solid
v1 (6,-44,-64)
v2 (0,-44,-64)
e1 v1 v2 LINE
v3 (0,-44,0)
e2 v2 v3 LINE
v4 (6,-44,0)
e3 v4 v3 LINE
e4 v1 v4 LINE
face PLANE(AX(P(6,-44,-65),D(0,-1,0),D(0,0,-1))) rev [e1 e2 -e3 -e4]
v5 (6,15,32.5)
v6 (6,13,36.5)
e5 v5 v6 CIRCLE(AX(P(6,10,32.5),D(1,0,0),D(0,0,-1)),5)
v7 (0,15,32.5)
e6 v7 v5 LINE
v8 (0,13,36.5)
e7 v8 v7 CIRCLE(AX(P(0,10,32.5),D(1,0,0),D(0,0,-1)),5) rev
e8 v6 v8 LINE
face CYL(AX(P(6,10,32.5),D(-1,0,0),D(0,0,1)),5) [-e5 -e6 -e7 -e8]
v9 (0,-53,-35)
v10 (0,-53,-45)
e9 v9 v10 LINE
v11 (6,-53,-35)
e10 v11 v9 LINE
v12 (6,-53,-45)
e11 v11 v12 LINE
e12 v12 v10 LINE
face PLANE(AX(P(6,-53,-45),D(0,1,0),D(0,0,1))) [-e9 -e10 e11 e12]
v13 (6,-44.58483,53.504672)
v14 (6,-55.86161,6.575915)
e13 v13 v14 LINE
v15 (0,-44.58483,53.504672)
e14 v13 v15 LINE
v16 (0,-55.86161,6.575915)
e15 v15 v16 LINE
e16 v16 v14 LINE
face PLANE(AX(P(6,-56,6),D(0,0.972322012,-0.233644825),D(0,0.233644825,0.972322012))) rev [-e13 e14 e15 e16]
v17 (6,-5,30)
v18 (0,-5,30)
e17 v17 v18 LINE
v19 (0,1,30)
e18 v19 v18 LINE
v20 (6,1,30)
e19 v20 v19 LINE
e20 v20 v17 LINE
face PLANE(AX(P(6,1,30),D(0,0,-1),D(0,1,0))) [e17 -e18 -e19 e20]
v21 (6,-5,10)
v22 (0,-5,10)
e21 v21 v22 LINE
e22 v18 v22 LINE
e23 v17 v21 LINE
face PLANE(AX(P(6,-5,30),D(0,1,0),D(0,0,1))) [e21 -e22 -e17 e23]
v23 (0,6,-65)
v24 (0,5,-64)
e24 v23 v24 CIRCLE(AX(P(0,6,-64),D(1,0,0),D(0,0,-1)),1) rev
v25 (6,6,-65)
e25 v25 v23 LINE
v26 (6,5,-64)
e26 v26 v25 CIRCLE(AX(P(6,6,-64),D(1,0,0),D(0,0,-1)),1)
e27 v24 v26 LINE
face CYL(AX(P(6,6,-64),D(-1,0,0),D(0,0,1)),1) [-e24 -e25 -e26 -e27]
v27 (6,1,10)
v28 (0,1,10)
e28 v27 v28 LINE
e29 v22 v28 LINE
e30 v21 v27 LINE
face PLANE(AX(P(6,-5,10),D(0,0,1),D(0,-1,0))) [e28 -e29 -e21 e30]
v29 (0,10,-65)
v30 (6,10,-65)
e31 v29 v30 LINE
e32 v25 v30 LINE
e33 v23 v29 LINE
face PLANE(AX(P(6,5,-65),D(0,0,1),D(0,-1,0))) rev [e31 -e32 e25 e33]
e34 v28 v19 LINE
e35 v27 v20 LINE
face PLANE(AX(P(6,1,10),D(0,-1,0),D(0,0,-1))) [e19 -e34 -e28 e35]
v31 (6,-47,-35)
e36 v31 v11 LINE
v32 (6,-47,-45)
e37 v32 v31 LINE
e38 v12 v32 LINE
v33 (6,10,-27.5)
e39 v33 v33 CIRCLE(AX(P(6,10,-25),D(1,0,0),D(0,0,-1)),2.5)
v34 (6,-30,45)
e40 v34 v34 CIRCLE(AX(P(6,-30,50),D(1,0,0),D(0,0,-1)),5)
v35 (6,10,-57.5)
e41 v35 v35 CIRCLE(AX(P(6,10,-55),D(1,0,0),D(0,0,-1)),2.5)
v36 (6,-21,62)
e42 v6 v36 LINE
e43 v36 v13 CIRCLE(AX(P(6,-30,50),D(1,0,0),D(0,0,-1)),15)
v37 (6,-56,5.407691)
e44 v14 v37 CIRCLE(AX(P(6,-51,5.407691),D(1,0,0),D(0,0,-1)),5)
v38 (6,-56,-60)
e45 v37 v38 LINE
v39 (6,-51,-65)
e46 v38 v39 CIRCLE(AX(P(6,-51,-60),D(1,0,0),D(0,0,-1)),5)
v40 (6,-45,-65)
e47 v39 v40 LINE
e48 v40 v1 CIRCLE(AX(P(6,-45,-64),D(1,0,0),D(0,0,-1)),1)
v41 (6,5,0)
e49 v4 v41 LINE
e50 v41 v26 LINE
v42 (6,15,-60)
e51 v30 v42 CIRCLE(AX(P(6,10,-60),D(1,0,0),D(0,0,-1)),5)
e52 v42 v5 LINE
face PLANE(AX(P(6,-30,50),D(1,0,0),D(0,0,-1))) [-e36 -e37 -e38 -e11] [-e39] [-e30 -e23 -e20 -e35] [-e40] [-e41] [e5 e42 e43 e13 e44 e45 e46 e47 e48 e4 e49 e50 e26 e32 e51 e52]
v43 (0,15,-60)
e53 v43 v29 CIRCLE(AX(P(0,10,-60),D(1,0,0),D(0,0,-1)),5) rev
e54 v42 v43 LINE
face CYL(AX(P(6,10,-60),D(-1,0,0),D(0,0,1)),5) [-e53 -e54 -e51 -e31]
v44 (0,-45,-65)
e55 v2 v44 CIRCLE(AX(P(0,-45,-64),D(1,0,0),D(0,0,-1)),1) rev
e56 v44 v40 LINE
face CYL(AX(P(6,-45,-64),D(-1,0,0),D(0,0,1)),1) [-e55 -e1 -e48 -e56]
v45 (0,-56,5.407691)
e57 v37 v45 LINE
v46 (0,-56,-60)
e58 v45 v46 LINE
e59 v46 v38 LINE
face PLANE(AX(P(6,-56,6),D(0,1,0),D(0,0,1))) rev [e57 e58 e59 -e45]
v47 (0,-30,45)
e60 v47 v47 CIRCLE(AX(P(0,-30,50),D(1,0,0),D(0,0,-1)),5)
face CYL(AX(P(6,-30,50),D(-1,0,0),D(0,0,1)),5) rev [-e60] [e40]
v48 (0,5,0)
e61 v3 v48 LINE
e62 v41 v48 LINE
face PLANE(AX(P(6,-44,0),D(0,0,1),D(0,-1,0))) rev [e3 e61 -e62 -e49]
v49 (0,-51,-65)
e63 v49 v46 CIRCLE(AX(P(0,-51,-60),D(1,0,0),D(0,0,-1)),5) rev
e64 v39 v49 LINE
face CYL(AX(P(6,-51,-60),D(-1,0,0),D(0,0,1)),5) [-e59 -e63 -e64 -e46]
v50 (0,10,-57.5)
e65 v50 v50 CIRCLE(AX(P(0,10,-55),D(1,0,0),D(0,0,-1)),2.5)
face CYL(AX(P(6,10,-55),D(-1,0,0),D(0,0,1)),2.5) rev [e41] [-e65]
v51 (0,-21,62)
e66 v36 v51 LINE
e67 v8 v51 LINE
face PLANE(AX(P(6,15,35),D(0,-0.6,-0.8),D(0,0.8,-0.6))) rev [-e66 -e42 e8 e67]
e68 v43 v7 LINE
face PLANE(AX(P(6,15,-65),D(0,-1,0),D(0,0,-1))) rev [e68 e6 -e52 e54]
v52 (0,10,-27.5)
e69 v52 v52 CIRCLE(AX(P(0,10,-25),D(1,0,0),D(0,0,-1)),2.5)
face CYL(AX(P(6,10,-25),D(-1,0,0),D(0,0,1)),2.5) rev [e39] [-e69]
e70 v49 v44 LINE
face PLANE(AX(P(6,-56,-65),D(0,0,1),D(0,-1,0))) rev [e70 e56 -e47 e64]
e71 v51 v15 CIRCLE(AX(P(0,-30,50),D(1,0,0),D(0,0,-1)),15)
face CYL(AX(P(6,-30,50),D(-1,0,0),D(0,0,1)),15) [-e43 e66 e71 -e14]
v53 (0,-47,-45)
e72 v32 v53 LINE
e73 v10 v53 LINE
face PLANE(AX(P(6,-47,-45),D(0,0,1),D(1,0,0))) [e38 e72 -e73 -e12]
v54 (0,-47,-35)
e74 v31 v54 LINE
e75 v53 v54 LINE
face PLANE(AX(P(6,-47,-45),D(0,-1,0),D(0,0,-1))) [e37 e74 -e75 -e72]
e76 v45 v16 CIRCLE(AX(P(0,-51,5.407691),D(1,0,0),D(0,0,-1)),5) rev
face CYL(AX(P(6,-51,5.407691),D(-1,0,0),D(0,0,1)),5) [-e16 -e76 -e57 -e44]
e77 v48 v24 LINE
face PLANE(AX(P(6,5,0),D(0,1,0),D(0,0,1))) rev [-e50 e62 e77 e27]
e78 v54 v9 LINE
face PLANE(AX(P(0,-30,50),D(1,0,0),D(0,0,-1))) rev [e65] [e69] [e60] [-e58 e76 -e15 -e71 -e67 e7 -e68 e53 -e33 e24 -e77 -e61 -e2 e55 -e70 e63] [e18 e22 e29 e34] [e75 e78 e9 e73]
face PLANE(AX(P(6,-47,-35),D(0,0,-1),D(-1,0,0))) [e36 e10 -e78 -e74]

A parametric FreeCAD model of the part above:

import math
import FreeCAD as App
import Part
import Sketcher

V = App.Vector
Q = App.Units.Quantity


def edges_at(feature, points):
    """Names of the edges that pass closest to the given points."""
    edges = feature.Shape.Edges
    near = lambda p: min(range(len(edges)), key=lambda i: edges[i].distToShape(Part.Vertex(*p))[0])
    return sorted({f"Edge{near(p) + 1}" for p in points})


def add_polygon(sketch, points):
    """Adds a closed chain of lines whose ends are joined by coincident constraints."""
    first, n = sketch.GeometryCount, len(points)
    for a, b in zip(points, points[1:] + points[:1]):
        sketch.addGeometry(Part.LineSegment(App.Vector(*a, 0), App.Vector(*b, 0)), False)
    for i in range(n):
        sketch.addConstraint(Sketcher.Constraint("Coincident", first + i, 2, first + (i + 1) % n, 1))

doc = App.newDocument("Part")
body = doc.addObject("PartDesign::Body", "Body")

# Sketch on YZ plane
sketch1 = body.newObject("Sketcher::SketchObject", "Sketch")
sketch1.AttachmentSupport = (doc.getObject("YZ_Plane"), [""])
sketch1.MapMode = "FlatFace"
sketch1.addGeometry(Part.LineSegment(V(5, 0, 0), V(5, -65, 0)), False)  # 0
sketch1.addGeometry(Part.LineSegment(V(5, -65, 0), V(15, -65, 0)), False)  # 1
sketch1.addGeometry(Part.LineSegment(V(15, -65, 0), V(15, 35, 0)), False)  # 2
sketch1.addGeometry(Part.LineSegment(V(15, 35, 0), V(-21, 62, 0)), False)  # 3
sketch1.addGeometry(Part.ArcOfCircle(Part.Circle(V(-30, 50, 0), V(0, 0, 1), 15), math.radians(53.130102), math.radians(166.488247)), False)  # 4
sketch1.addGeometry(Part.LineSegment(V(-44.58483, 53.504672, 0), V(-56, 6, 0)), False)  # 5
sketch1.addGeometry(Part.LineSegment(V(-56, 6, 0), V(-56, -65, 0)), False)  # 6
sketch1.addGeometry(Part.LineSegment(V(-56, -65, 0), V(-44, -65, 0)), False)  # 7
sketch1.addGeometry(Part.LineSegment(V(-44, -65, 0), V(-44, 0, 0)), False)  # 8
sketch1.addGeometry(Part.LineSegment(V(-44, 0, 0), V(5, 0, 0)), False)  # 9
sketch1.addGeometry(Part.Circle(V(-30, 50, 0), V(0, 0, 1), 5), False)  # 10
add_polygon(sketch1, [(-53, -45), (-53, -35), (-47, -35), (-47, -45)])  # lines 11-14
add_polygon(sketch1, [(-5, 10), (-5, 30), (1, 30), (1, 10)])  # lines 15-18
sketch1.addGeometry(Part.Circle(V(10, -25, 0), V(0, 0, 1), 2.5), False)  # 19
sketch1.addGeometry(Part.Circle(V(10, -55, 0), V(0, 0, 1), 2.5), False)  # 20
sketch1.addConstraint(Sketcher.Constraint("Coincident", 0, 2, 1, 1))
sketch1.addConstraint(Sketcher.Constraint("Coincident", 1, 2, 2, 1))
sketch1.addConstraint(Sketcher.Constraint("Coincident", 2, 2, 3, 1))
sketch1.addConstraint(Sketcher.Constraint("Tangent", 3, 2, 4, 1))
sketch1.addConstraint(Sketcher.Constraint("Tangent", 4, 2, 5, 1))
sketch1.addConstraint(Sketcher.Constraint("Coincident", 5, 2, 6, 1))
sketch1.addConstraint(Sketcher.Constraint("Coincident", 6, 2, 7, 1))
sketch1.addConstraint(Sketcher.Constraint("Coincident", 7, 2, 8, 1))
sketch1.addConstraint(Sketcher.Constraint("Coincident", 8, 2, 9, 1))
sketch1.addConstraint(Sketcher.Constraint("Coincident", 9, 2, 0, 1))
sketch1.addConstraint(Sketcher.Constraint("Vertical", 0))
sketch1.addConstraint(Sketcher.Constraint("Horizontal", 1))
sketch1.addConstraint(Sketcher.Constraint("Vertical", 2))
sketch1.addConstraint(Sketcher.Constraint("Vertical", 6))
sketch1.addConstraint(Sketcher.Constraint("Horizontal", 7))
sketch1.addConstraint(Sketcher.Constraint("Vertical", 8))
sketch1.addConstraint(Sketcher.Constraint("Horizontal", 9))
sketch1.addConstraint(Sketcher.Constraint("Vertical", 11))
sketch1.addConstraint(Sketcher.Constraint("Horizontal", 12))
sketch1.addConstraint(Sketcher.Constraint("Vertical", 13))
sketch1.addConstraint(Sketcher.Constraint("Horizontal", 14))
sketch1.addConstraint(Sketcher.Constraint("Vertical", 15))
sketch1.addConstraint(Sketcher.Constraint("Horizontal", 16))
sketch1.addConstraint(Sketcher.Constraint("Vertical", 17))
sketch1.addConstraint(Sketcher.Constraint("Horizontal", 18))
sketch1.addConstraint(Sketcher.Constraint("Coincident", 10, 3, 4, 3))
sketch1.addConstraint(Sketcher.Constraint("Equal", 19, 20))
sketch1.addConstraint(Sketcher.Constraint("PointOnObject", 8, 2, -1))
sketch1.addConstraint(Sketcher.Constraint("Horizontal", 1, 2, 6, 2))
sketch1.addConstraint(Sketcher.Constraint("Vertical", 19, 3, 20, 3))
sketch1.addConstraint(Sketcher.Constraint("Equal", 14, 16))
sketch1.addConstraint(Sketcher.Constraint("Equal", 1, 11))
sketch1.addConstraint(Sketcher.Constraint("Diameter", 10, Q("10 mm")))
sketch1.addConstraint(Sketcher.Constraint("Diameter", 19, Q("5 mm")))
sketch1.addConstraint(Sketcher.Constraint("Radius", 4, Q("15 mm")))
sketch1.addConstraint(Sketcher.Constraint("DistanceX", 1, 1, 1, 2, Q("10 mm")))
sketch1.addConstraint(Sketcher.Constraint("DistanceX", 7, 1, 7, 2, Q("12 mm")))
sketch1.addConstraint(Sketcher.Constraint("DistanceX", 9, 1, 9, 2, Q("49 mm")))
sketch1.addConstraint(Sketcher.Constraint("DistanceX", 12, 1, 12, 2, Q("6 mm")))
sketch1.addConstraint(Sketcher.Constraint("DistanceY", 0, 2, 0, 1, Q("65 mm")))
sketch1.addConstraint(Sketcher.Constraint("DistanceY", 2, 1, 2, 2, Q("100 mm")))
sketch1.addConstraint(Sketcher.Constraint("DistanceY", 6, 2, 6, 1, Q("71 mm")))
sketch1.addConstraint(Sketcher.Constraint("DistanceY", 15, 1, 15, 2, Q("20 mm")))
sketch1.addConstraint(Sketcher.Constraint("Distance", 3, Q("45 mm")))
sketch1.addConstraint(Sketcher.Constraint("DistanceX", 4, 3, -1, 1, Q("30 mm")))
sketch1.addConstraint(Sketcher.Constraint("DistanceY", -1, 1, 4, 3, Q("50 mm")))
sketch1.addConstraint(Sketcher.Constraint("DistanceX", -1, 1, 19, 3, Q("10 mm")))
sketch1.addConstraint(Sketcher.Constraint("DistanceY", 19, 3, -1, 1, Q("25 mm")))
sketch1.addConstraint(Sketcher.Constraint("DistanceY", 20, 3, -1, 1, Q("55 mm")))
sketch1.addConstraint(Sketcher.Constraint("DistanceX", 11, 2, -1, 1, Q("53 mm")))
sketch1.addConstraint(Sketcher.Constraint("DistanceY", 11, 2, -1, 1, Q("35 mm")))
sketch1.addConstraint(Sketcher.Constraint("DistanceX", 15, 2, -1, 1, Q("5 mm")))
sketch1.addConstraint(Sketcher.Constraint("DistanceY", -1, 1, 15, 2, Q("30 mm")))
pad1 = body.newObject("PartDesign::Pad", "Pad")
pad1.Profile = sketch1
pad1.Length = 6
doc.recompute()

fillet = body.newObject("PartDesign::Fillet", "Fillet")
fillet.Base = (pad1, edges_at(pad1, [
    (3, -56, -65),
    (3, -56, 6),
    (3, 15, 35),
    (3, 15, -65),
]))
fillet.Radius = 5
doc.recompute()

fillet2 = body.newObject("PartDesign::Fillet", "Fillet001")
fillet2.Base = (fillet, edges_at(fillet, [(3, 5, -65), (3, -44, -65)]))
fillet2.Radius = 1

doc.recompute()
